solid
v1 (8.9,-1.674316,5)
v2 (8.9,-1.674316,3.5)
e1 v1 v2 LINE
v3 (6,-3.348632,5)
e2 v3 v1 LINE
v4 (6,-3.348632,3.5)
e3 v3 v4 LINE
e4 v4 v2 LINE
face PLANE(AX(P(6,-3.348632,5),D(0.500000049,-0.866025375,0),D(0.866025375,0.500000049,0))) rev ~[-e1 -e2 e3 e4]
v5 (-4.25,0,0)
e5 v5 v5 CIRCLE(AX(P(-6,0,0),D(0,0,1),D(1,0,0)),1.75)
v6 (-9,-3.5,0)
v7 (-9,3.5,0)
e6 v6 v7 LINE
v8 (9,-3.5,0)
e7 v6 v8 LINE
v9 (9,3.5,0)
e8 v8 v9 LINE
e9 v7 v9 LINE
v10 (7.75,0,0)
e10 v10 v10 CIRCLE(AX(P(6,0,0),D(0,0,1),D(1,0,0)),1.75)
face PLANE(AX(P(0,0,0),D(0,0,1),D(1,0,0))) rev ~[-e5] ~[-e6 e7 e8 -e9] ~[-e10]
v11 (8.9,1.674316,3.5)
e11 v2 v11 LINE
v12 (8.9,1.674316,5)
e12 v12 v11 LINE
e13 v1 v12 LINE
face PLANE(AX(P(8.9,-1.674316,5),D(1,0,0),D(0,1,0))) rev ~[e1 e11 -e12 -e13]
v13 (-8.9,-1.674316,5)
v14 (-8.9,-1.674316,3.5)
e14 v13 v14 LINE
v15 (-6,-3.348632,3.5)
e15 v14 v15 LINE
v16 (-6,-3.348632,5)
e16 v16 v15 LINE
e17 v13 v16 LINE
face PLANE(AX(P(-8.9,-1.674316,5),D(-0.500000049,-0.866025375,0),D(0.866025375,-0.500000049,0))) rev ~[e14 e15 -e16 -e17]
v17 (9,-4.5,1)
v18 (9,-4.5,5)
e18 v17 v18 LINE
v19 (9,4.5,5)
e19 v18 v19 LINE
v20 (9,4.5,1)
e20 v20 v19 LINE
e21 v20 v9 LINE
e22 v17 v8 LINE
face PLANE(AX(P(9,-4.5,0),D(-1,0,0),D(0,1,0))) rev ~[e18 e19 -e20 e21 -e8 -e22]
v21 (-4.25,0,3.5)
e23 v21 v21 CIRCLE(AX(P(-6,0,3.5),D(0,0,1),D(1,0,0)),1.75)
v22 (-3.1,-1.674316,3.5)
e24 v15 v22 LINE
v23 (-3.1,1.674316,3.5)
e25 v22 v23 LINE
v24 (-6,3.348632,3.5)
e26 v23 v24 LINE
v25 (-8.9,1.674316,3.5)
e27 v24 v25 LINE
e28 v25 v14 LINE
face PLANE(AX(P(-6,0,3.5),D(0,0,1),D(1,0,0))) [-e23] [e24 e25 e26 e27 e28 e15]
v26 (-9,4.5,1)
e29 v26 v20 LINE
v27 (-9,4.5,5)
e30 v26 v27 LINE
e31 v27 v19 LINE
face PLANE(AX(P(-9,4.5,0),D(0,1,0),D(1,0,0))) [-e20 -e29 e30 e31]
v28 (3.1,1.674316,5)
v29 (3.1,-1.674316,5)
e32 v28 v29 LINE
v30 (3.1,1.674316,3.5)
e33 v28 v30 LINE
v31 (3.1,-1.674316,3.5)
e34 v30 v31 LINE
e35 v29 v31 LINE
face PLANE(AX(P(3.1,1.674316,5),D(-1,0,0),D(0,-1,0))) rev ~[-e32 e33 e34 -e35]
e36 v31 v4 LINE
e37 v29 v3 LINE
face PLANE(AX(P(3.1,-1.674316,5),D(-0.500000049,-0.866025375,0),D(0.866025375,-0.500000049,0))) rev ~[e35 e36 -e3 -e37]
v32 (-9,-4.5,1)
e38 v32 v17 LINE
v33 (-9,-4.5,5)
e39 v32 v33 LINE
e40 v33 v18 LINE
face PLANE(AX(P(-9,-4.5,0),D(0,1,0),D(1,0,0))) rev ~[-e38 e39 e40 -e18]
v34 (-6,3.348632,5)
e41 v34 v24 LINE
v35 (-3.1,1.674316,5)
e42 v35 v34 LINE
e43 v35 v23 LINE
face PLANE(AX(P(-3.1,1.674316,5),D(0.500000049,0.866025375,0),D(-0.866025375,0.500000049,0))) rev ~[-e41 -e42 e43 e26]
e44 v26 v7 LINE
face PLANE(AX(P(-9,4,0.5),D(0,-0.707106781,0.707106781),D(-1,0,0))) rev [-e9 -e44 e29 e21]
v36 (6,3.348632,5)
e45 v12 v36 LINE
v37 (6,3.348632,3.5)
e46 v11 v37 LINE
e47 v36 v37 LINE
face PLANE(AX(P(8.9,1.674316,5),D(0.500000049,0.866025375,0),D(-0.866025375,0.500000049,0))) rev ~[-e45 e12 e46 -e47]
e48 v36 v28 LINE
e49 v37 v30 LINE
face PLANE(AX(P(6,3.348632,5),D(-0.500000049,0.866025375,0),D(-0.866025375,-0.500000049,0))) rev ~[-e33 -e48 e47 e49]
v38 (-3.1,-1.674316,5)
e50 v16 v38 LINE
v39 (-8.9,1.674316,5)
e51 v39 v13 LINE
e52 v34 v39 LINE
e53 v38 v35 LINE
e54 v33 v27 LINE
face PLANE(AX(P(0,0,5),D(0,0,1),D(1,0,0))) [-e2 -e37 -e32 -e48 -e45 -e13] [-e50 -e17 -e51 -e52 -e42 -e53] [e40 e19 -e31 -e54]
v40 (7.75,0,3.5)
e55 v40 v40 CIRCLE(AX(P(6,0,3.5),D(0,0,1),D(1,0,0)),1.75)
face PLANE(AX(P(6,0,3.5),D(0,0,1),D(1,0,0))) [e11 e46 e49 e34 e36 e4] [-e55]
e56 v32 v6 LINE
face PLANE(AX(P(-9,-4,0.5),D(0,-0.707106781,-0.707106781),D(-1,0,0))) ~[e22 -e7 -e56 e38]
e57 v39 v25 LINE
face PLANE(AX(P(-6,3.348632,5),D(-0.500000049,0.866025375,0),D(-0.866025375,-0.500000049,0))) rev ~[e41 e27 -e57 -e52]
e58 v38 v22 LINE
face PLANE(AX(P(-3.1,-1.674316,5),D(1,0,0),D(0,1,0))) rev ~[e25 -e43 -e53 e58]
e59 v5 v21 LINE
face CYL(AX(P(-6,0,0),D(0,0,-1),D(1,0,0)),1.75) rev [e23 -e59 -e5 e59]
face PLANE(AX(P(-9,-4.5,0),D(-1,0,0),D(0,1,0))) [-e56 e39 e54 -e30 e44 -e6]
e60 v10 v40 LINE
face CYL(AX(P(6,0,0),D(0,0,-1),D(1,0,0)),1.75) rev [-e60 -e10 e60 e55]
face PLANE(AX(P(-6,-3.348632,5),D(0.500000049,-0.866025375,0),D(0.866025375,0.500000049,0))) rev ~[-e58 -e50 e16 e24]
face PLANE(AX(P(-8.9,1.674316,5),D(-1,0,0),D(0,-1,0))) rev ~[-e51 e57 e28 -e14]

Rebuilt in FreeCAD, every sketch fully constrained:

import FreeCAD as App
import Part
import Sketcher
Q = App.Units.Quantity


def edges_at(feature, points):
    """Names of the edges that pass closest to the given points."""
    edges = feature.Shape.Edges
    near = lambda p: min(range(len(edges)), key=lambda i: edges[i].distToShape(Part.Vertex(*p))[0])
    return sorted({f"Edge{near(p) + 1}" for p in points})

doc = App.newDocument("Part")
body = doc.addObject("PartDesign::Body", "Body")

# Sketch on XY plane
sketch1 = doc.addObject("Sketcher::SketchObject", "Sketch")
body.addObject(sketch1)
sketch1.AttachmentSupport = (doc.XY_Plane, [""])
sketch1.MapMode = "FlatFace"
sketch1.addGeometry(Part.LineSegment(App.Vector(-9, 4.5, 0), App.Vector(-9, -4.5, 0)), False)
sketch1.addGeometry(Part.LineSegment(App.Vector(-9, -4.5, 0), App.Vector(9, -4.5, 0)), False)
sketch1.addGeometry(Part.LineSegment(App.Vector(9, -4.5, 0), App.Vector(9, 4.5, 0)), False)
sketch1.addGeometry(Part.LineSegment(App.Vector(9, 4.5, 0), App.Vector(-9, 4.5, 0)), False)
sketch1.addGeometry(Part.Circle(App.Vector(-6, 0, 0), App.Vector(0, 0, 1), 1.8), False)
sketch1.addGeometry(Part.Circle(App.Vector(6, 0, 0), App.Vector(0, 0, 1), 1.8), False)
sketch1.addConstraint(Sketcher.Constraint("Coincident", 0, 2, 1, 1))
sketch1.addConstraint(Sketcher.Constraint("Coincident", 1, 2, 2, 1))
sketch1.addConstraint(Sketcher.Constraint("Coincident", 2, 2, 3, 1))
sketch1.addConstraint(Sketcher.Constraint("Coincident", 3, 2, 0, 1))
sketch1.addConstraint(Sketcher.Constraint("Vertical", 0))
sketch1.addConstraint(Sketcher.Constraint("Horizontal", 1))
sketch1.addConstraint(Sketcher.Constraint("Vertical", 2))
sketch1.addConstraint(Sketcher.Constraint("Horizontal", 3))
sketch1.addConstraint(Sketcher.Constraint("Equal", 4, 5))
sketch1.addConstraint(Sketcher.Constraint("Symmetric", 4, 3, 5, 3, -1, 1))
sketch1.addConstraint(Sketcher.Constraint("Symmetric", 0, 2, 2, 2, -1, 1))
sketch1.addConstraint(Sketcher.Constraint("PointOnObject", 4, 3, -1))
sketch1.addConstraint(Sketcher.Constraint("Diameter", 4, 3.5))
sketch1.addConstraint(Sketcher.Constraint("DistanceX", 1, 1, 1, 2, 18.0))
sketch1.addConstraint(Sketcher.Constraint("DistanceY", 0, 2, 0, 1, 9.0))
sketch1.addConstraint(Sketcher.Constraint("DistanceX", 4, 3, -1, 1, 6.0))
pad1 = doc.addObject("PartDesign::Pad", "Pad")
body.addObject(pad1)
pad1.Profile = sketch1
pad1.Length = 5

# Sketch on XY plane
sketch2 = doc.addObject("Sketcher::SketchObject", "Sketch001")
body.addObject(sketch2)
sketch2.AttachmentSupport = (doc.XY_Plane, [""])
sketch2.MapMode = "FlatFace"
sketch2.AttachmentOffset = App.Placement(App.Vector(0, 0, 5), App.Rotation())
sketch2.addGeometry(Part.LineSegment(App.Vector(-8.9, 1.7, 0), App.Vector(-8.9, -1.7, 0)), False)
sketch2.addGeometry(Part.LineSegment(App.Vector(-8.9, -1.7, 0), App.Vector(-6, -3.3, 0)), False)
sketch2.addGeometry(Part.LineSegment(App.Vector(-6, -3.3, 0), App.Vector(-3.1, -1.7, 0)), False)
sketch2.addGeometry(Part.LineSegment(App.Vector(-3.1, -1.7, 0), App.Vector(-3.1, 1.7, 0)), False)
sketch2.addGeometry(Part.LineSegment(App.Vector(-3.1, 1.7, 0), App.Vector(-6, 3.3, 0)), False)
sketch2.addGeometry(Part.LineSegment(App.Vector(-6, 3.3, 0), App.Vector(-8.9, 1.7, 0)), False)
sketch2.addGeometry(Part.Circle(App.Vector(-6, 0, 0), App.Vector(0, 0, 1), 1.8), False)
sketch2.addGeometry(Part.LineSegment(App.Vector(3.1, 1.7, 0), App.Vector(3.1, -1.7, 0)), False)
sketch2.addGeometry(Part.LineSegment(App.Vector(3.1, -1.7, 0), App.Vector(6, -3.3, 0)), False)
sketch2.addGeometry(Part.LineSegment(App.Vector(6, -3.3, 0), App.Vector(8.9, -1.7, 0)), False)
sketch2.addGeometry(Part.LineSegment(App.Vector(8.9, -1.7, 0), App.Vector(8.9, 1.7, 0)), False)
sketch2.addGeometry(Part.LineSegment(App.Vector(8.9, 1.7, 0), App.Vector(6, 3.3, 0)), False)
sketch2.addGeometry(Part.LineSegment(App.Vector(6, 3.3, 0), App.Vector(3.1, 1.7, 0)), False)
sketch2.addGeometry(Part.Circle(App.Vector(6, 0, 0), App.Vector(0, 0, 1), 1.8), False)
sketch2.addConstraint(Sketcher.Constraint("Coincident", 0, 2, 1, 1))
sketch2.addConstraint(Sketcher.Constraint("Coincident", 1, 2, 2, 1))
sketch2.addConstraint(Sketcher.Constraint("Coincident", 2, 2, 3, 1))
sketch2.addConstraint(Sketcher.Constraint("Coincident", 3, 2, 4, 1))
sketch2.addConstraint(Sketcher.Constraint("Coincident", 4, 2, 5, 1))
sketch2.addConstraint(Sketcher.Constraint("Coincident", 5, 2, 0, 1))
sketch2.addConstraint(Sketcher.Constraint("Coincident", 7, 2, 8, 1))
sketch2.addConstraint(Sketcher.Constraint("Coincident", 8, 2, 9, 1))
sketch2.addConstraint(Sketcher.Constraint("Coincident", 9, 2, 10, 1))
sketch2.addConstraint(Sketcher.Constraint("Coincident", 10, 2, 11, 1))
sketch2.addConstraint(Sketcher.Constraint("Coincident", 11, 2, 12, 1))
sketch2.addConstraint(Sketcher.Constraint("Coincident", 12, 2, 7, 1))
sketch2.addConstraint(Sketcher.Constraint("Vertical", 0))
sketch2.addConstraint(Sketcher.Constraint("Vertical", 3))
sketch2.addConstraint(Sketcher.Constraint("Vertical", 7))
sketch2.addConstraint(Sketcher.Constraint("Vertical", 10))
sketch2.addConstraint(Sketcher.Constraint("Equal", 6, 13))
sketch2.addConstraint(Sketcher.Constraint("Symmetric", 6, 3, 13, 3, -1, 1))
sketch2.addConstraint(Sketcher.Constraint("Symmetric", 3, 2, 7, 2, -1, 1))
sketch2.addConstraint(Sketcher.Constraint("Symmetric", 4, 2, 8, 2, -1, 1))
sketch2.addConstraint(Sketcher.Constraint("Symmetric", 5, 2, 9, 2, -1, 1))
sketch2.addConstraint(Sketcher.Constraint("Symmetric", 1, 2, 11, 2, -1, 1))
sketch2.addConstraint(Sketcher.Constraint("Symmetric", 1, 2, 8, 2, -2))
sketch2.addConstraint(Sketcher.Constraint("PointOnObject", 6, 3, -1))
sketch2.addConstraint(Sketcher.Constraint("Parallel", 1, 4))
sketch2.addConstraint(Sketcher.Constraint("Parallel", 2, 5))
sketch2.addConstraint(Sketcher.Constraint("Parallel", 8, 11))
sketch2.addConstraint(Sketcher.Constraint("Parallel", 9, 12))
sketch2.addConstraint(Sketcher.Constraint("Horizontal", 0, 2, 2, 2))
sketch2.addConstraint(Sketcher.Constraint("Horizontal", 3, 2, 5, 2))
sketch2.addConstraint(Sketcher.Constraint("Vertical", 6, 3, 1, 2))
sketch2.addConstraint(Sketcher.Constraint("Diameter", 6, 3.5))
sketch2.addConstraint(Sketcher.Constraint("Angle", 1, Q("-30.000003 deg")))
sketch2.addConstraint(Sketcher.Constraint("DistanceX", 6, 3, -1, 1, 6.0))
sketch2.addConstraint(Sketcher.Constraint("DistanceX", 0, 2, -1, 1, 8.9))
sketch2.addConstraint(Sketcher.Constraint("DistanceY", 0, 2, 0, 1, 3.348632))
pocket1 = doc.addObject("PartDesign::Pocket", "Pocket")
body.addObject(pocket1)
pocket1.Profile = sketch2
pocket1.Length = 1.5
doc.recompute()

chamfer = doc.addObject("PartDesign::Chamfer", "Chamfer")
body.addObject(chamfer)
chamfer.Base = (pocket1, edges_at(pocket1, [(0, -4.5, 0), (0, 4.5, 0)]))
chamfer.Size = 1

doc.recompute()
